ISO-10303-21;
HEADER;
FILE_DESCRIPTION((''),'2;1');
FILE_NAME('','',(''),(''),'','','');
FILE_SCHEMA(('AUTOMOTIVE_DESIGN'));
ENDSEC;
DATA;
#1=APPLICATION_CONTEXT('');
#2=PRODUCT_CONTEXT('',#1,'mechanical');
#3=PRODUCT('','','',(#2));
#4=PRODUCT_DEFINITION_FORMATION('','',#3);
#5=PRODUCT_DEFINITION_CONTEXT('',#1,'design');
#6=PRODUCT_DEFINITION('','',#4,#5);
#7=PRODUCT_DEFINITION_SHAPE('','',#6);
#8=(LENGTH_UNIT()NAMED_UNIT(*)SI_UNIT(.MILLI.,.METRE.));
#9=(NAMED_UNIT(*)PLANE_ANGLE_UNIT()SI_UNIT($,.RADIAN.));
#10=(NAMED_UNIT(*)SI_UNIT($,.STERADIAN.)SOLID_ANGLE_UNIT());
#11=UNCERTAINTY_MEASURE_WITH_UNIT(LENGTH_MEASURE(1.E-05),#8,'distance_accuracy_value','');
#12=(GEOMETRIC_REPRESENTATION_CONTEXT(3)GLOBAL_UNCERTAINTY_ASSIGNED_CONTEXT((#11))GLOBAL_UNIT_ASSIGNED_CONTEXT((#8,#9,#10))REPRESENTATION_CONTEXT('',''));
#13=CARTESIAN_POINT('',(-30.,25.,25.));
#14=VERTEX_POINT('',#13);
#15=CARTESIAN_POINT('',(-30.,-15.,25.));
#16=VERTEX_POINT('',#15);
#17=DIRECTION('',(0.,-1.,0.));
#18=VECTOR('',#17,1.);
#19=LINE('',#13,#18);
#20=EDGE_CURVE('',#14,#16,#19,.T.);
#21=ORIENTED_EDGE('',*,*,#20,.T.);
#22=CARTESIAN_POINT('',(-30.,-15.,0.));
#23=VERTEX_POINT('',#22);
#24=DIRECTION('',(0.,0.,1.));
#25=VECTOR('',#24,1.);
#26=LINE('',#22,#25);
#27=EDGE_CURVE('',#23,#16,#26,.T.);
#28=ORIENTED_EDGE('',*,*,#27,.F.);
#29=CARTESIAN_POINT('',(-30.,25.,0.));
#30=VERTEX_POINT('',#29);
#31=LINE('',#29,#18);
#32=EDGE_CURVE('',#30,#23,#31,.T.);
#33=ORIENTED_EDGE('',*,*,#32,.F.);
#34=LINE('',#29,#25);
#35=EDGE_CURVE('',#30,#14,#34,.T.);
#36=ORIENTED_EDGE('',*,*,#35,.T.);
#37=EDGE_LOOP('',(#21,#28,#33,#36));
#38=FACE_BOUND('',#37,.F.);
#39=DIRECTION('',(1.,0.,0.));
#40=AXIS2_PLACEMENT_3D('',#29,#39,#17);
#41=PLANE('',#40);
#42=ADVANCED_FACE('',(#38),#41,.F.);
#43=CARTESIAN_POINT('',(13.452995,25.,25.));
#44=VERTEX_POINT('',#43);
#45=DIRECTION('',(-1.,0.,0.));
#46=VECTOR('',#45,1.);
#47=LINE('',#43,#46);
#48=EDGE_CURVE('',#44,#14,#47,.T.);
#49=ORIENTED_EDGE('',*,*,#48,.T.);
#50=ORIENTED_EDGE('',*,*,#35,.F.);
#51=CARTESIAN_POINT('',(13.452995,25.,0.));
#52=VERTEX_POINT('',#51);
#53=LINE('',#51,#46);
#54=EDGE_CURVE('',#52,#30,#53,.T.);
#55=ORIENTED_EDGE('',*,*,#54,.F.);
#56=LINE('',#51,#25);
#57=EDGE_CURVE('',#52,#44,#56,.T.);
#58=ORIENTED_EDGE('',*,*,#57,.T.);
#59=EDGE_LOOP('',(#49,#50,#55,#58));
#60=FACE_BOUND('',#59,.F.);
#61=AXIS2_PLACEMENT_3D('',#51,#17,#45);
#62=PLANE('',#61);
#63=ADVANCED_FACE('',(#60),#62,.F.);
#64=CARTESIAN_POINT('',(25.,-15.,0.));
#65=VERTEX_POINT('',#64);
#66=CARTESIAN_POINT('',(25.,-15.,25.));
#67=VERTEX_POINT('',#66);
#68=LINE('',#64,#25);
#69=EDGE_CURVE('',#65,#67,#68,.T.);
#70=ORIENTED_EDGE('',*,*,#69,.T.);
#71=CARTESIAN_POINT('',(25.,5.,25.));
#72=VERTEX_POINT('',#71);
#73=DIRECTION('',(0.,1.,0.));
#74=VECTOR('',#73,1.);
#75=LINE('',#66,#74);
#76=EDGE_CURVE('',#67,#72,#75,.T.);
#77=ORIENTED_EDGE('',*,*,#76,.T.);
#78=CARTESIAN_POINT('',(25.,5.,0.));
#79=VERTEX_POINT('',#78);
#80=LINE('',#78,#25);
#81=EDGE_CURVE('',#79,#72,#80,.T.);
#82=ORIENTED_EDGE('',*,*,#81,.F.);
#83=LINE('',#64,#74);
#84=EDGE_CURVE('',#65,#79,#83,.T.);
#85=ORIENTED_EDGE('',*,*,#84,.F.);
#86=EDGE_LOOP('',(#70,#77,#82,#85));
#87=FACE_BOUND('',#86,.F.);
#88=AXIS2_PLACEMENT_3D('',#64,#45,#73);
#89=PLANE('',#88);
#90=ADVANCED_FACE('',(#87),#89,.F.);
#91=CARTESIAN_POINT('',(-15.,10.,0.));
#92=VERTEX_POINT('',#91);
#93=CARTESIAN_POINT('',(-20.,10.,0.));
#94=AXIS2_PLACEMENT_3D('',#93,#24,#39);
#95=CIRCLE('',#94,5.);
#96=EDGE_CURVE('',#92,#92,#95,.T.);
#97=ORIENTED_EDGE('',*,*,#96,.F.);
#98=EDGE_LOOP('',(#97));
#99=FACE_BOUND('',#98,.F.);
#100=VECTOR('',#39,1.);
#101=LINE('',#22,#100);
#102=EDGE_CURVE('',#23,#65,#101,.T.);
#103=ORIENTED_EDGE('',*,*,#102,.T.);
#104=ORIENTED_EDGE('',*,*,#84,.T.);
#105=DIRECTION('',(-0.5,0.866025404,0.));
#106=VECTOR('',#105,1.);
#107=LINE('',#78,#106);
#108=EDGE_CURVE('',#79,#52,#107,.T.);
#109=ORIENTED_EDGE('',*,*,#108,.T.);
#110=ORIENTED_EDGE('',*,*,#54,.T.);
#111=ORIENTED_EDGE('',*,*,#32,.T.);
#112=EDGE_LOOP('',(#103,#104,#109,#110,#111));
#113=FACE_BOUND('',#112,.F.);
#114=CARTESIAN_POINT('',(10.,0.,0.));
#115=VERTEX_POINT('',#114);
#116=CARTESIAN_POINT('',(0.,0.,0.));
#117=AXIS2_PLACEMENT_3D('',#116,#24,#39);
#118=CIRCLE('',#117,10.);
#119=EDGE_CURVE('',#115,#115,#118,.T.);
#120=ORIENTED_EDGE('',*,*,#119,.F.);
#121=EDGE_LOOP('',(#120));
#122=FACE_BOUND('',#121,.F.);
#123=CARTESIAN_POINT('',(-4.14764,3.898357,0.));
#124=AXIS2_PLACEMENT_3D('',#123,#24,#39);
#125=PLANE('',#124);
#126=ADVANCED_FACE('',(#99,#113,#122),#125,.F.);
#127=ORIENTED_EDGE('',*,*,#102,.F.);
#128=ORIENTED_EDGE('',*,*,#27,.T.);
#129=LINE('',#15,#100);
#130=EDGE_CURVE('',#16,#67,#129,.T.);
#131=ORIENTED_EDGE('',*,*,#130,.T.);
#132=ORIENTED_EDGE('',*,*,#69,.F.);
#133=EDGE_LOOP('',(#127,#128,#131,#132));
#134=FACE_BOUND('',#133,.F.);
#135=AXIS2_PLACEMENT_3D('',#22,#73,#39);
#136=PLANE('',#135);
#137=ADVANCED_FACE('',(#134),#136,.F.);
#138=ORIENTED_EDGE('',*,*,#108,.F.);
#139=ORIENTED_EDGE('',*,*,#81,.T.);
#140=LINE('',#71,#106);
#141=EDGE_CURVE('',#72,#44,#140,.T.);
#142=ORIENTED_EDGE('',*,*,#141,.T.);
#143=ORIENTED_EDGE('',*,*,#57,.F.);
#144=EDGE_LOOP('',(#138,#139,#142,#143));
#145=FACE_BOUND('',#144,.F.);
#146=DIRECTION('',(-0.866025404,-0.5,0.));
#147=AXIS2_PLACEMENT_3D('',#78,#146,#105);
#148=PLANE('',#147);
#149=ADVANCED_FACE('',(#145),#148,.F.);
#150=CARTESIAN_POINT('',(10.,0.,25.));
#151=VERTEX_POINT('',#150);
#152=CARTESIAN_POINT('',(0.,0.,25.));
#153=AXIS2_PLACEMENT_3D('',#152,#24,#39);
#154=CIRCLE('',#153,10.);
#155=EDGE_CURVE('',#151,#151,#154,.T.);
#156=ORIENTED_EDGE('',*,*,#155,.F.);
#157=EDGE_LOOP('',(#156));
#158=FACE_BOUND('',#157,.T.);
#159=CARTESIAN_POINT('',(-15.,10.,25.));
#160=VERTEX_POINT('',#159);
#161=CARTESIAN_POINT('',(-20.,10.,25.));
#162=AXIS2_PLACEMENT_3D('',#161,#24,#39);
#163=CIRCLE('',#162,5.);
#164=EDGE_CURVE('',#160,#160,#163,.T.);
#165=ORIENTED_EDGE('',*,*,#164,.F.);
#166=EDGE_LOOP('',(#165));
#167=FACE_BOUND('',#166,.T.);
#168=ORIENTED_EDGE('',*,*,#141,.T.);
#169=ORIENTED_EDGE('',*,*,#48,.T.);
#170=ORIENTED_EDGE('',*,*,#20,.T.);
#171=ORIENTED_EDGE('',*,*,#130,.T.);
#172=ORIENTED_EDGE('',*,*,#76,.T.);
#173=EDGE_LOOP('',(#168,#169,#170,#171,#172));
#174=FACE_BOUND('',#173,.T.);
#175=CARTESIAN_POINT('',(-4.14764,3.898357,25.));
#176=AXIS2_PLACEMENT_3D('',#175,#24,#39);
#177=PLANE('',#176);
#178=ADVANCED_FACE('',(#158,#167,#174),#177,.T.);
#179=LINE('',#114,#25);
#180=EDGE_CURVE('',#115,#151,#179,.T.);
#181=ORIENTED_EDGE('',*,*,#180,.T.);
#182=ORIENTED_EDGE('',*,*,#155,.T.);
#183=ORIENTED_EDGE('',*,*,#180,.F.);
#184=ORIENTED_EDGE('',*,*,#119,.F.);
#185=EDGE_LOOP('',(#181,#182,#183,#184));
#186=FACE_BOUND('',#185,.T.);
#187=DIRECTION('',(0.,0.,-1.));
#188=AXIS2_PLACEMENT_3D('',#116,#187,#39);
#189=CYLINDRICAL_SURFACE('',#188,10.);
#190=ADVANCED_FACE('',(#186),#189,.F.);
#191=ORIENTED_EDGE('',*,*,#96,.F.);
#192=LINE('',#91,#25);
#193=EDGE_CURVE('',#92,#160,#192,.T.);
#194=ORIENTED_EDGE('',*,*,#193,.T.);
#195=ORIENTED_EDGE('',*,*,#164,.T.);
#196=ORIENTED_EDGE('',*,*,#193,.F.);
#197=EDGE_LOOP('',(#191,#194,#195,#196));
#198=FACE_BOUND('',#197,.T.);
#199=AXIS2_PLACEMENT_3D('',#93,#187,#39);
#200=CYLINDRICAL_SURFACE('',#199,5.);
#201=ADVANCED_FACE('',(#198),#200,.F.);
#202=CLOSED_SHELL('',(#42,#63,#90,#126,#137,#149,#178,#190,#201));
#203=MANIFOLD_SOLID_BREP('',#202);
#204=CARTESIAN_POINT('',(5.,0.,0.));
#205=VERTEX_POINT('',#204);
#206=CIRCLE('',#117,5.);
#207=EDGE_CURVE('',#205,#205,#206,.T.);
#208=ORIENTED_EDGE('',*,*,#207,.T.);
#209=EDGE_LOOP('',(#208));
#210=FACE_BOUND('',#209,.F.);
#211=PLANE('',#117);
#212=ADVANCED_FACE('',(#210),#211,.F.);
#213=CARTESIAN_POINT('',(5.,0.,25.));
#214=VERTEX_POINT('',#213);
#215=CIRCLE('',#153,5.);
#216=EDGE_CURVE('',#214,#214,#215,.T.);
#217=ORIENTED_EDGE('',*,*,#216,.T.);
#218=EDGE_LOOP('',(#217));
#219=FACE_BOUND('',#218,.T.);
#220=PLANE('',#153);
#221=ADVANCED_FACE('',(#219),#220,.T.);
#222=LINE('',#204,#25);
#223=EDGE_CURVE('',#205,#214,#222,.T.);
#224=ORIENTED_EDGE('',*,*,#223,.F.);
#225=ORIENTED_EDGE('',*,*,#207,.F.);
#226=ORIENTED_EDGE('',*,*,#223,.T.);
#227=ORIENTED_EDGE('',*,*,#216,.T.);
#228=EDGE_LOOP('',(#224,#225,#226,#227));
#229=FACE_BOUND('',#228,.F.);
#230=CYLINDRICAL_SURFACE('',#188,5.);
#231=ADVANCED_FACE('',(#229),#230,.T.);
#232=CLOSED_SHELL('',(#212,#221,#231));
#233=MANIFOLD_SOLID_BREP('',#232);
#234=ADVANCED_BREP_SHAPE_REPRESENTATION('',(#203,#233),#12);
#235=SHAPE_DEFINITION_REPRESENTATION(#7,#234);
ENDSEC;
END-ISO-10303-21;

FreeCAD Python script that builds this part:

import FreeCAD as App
import Part
import Sketcher
from FreeCAD import Vector
Q = App.Units.Quantity


def add_polygon(sketch, points):
    """Adds a closed chain of lines whose ends are joined by coincident constraints."""
    first, n = sketch.GeometryCount, len(points)
    for a, b in zip(points, points[1:] + points[:1]):
        sketch.addGeometry(Part.LineSegment(App.Vector(*a, 0), App.Vector(*b, 0)), False)
    for i in range(n):
        sketch.addConstraint(Sketcher.Constraint("Coincident", first + i, 2, first + (i + 1) % n, 1))

doc = App.newDocument("Part")
body = doc.addObject("PartDesign::Body", "Body")

sketch1 = doc.addObject("Sketcher::SketchObject", "Sketch")
body.addObject(sketch1)
sketch1.AttachmentSupport = (doc.XY_Plane, [""])
sketch1.MapMode = "FlatFace"
sketch1.addGeometry(Part.Circle(Vector(0, 0, 0), Vector(0, 0, 1), 5), False)
sketch1.addConstraint([
    Sketcher.Constraint("Coincident", 0, 3, -1, 1),
    Sketcher.Constraint("Diameter", 0, Q("10 mm")),
])
pad1 = doc.addObject("PartDesign::Pad", "Pad")
body.addObject(pad1)
pad1.Profile = sketch1
pad1.Length = 25
body2 = doc.addObject("PartDesign::Body", "Body001")

sketch2 = doc.addObject("Sketcher::SketchObject", "Sketch001")
body2.addObject(sketch2)
sketch2.AttachmentSupport = (doc.getObject("XY_Plane001"), [""])
sketch2.MapMode = "FlatFace"
add_polygon(sketch2, [(-30, -15), (25, -15), (25, 5), (13.452995, 25), (-30, 25)])
sketch2.addGeometry(Part.Circle(Vector(0, 0, 0), Vector(0, 0, 1), 10), False)
sketch2.addGeometry(Part.Circle(Vector(-20, 10, 0), Vector(0, 0, 1), 5), False)
sketch2.addConstraint([
    Sketcher.Constraint("Horizontal", 0),
    Sketcher.Constraint("Vertical", 1),
    Sketcher.Constraint("Horizontal", 3),
    Sketcher.Constraint("Vertical", 4),
    Sketcher.Constraint("Coincident", 5, 3, -1, 1),
    Sketcher.Constraint("Diameter", 5, Q("20 mm")),
    Sketcher.Constraint("Diameter", 6, Q("10 mm")),
    Sketcher.Constraint("DistanceX", 0, 1, 0, 2, Q("55 mm")),
    Sketcher.Constraint("DistanceY", 1, 1, 1, 2, Q("20 mm")),
    Sketcher.Constraint("DistanceY", 4, 2, 4, 1, Q("40 mm")),
    Sketcher.Constraint("Angle", 2, Q("120 deg")),
    Sketcher.Constraint("DistanceX", 6, 3, -1, 1, Q("20 mm")),
    Sketcher.Constraint("DistanceY", -1, 1, 6, 3, Q("10 mm")),
    Sketcher.Constraint("DistanceX", -1, 1, 0, 2, Q("25 mm")),
    Sketcher.Constraint("DistanceY", 0, 2, -1, 1, Q("15 mm")),
])
pad2 = doc.addObject("PartDesign::Pad", "Pad001")
body2.addObject(pad2)
pad2.Profile = sketch2
pad2.Length = 25

doc.recompute()
